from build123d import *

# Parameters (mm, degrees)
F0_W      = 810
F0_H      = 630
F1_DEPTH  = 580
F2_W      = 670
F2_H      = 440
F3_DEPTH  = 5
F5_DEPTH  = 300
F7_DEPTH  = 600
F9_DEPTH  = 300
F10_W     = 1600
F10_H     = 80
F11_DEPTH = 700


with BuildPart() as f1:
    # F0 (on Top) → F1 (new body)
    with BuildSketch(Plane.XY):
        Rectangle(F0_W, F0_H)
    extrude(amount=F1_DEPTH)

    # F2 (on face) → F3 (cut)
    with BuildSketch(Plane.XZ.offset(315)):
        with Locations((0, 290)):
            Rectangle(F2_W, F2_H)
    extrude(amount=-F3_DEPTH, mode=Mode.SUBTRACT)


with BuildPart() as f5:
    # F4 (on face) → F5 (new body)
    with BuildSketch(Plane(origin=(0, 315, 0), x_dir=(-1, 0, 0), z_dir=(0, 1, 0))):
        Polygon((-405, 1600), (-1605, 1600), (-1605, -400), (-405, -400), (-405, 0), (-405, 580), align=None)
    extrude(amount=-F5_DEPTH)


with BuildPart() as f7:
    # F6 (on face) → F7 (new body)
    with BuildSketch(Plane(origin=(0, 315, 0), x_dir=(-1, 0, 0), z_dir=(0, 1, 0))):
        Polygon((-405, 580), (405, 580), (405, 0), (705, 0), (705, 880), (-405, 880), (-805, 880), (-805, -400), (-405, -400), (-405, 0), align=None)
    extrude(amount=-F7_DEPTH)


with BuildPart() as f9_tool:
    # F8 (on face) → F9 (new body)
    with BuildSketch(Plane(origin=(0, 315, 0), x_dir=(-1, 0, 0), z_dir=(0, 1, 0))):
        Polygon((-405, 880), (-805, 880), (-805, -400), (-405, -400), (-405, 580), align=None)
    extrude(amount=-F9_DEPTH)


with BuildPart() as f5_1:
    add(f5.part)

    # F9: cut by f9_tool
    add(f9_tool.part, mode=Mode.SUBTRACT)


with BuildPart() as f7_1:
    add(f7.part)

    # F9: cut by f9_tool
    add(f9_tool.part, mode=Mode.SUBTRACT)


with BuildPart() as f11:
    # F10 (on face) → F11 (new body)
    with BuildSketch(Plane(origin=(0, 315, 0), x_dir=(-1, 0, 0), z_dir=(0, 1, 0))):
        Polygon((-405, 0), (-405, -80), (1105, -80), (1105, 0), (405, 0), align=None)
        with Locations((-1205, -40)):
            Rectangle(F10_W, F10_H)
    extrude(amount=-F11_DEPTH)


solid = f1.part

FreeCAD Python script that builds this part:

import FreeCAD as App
import Part
import Sketcher

V = App.Vector
Q = App.Units.Quantity


def add_polygon(sketch, points):
    """Adds a closed chain of lines whose ends are joined by coincident constraints."""
    first, n = sketch.GeometryCount, len(points)
    for a, b in zip(points, points[1:] + points[:1]):
        sketch.addGeometry(Part.LineSegment(App.Vector(*a, 0), App.Vector(*b, 0)), False)
    for i in range(n):
        sketch.addConstraint(Sketcher.Constraint("Coincident", first + i, 2, first + (i + 1) % n, 1))

doc = App.newDocument("Part")
params = doc.addObject("Spreadsheet::Sheet", "Params")
for row, (alias, value) in enumerate([
    ("sketch1_width", "810 mm"),
    ("sketch1_height", "630 mm"),
    ("pad1_length", "580 mm"),
    ("sketch2_width", "670 mm"),
    ("sketch2_height", "440 mm"),
    ("pocket1_length", "5 mm"),
    ("sketch3_width", "1200 mm"),
    ("sketch3_height", "2000 mm"),
    ("pad2_length", "300 mm"),
    ("sketch4_width", "810 mm"),
    ("sketch4_width2", "300 mm"),
    ("sketch4_width3", "1510 mm"),
    ("sketch4_height", "580 mm"),
    ("sketch4_height2", "880 mm"),
    ("pad3_length", "600 mm"),
    ("sketch5_width", "400 mm"),
    ("sketch5_height", "1280 mm"),
    ("pad4_length", "300 mm"),
    ("sketch6_width", "3110 mm"),
    ("sketch6_height", "80 mm"),
    ("pad5_length", "700 mm"),
], start=1):
    params.set(f"A{row}", alias)
    params.set(f"B{row}", "=" + value)
    params.setAlias(f"B{row}", alias)

body = doc.addObject("PartDesign::Body", "Body")

sketch1 = body.newObject("Sketcher::SketchObject", "Sketch")
sketch1.AttachmentSupport = (doc.getObject("XY_Plane"), [""])
sketch1.MapMode = "FlatFace"
add_polygon(sketch1, [(-405, 315), (-405, -315), (405, -315), (405, 315)])
sketch1.addConstraint([
    Sketcher.Constraint("Vertical", 0),
    Sketcher.Constraint("Horizontal", 1),
    Sketcher.Constraint("Vertical", 2),
    Sketcher.Constraint("Horizontal", 3),
    Sketcher.Constraint("Symmetric", 0, 2, 2, 2, -1, 1),
    Sketcher.Constraint("DistanceX", 1, 1, 1, 2, Q("810 mm")),
    Sketcher.Constraint("DistanceY", 0, 2, 0, 1, Q("630 mm")),
])
sketch1.setExpression("Constraints[9]", "Params.sketch1_width")
sketch1.setExpression("Constraints[10]", "Params.sketch1_height")
pad1 = body.newObject("PartDesign::Pad", "Pad")
pad1.Profile = sketch1
pad1.setExpression("Length", "Params.pad1_length")

sketch2 = body.newObject("Sketcher::SketchObject", "Sketch001")
sketch2.AttachmentSupport = (doc.getObject("XZ_Plane"), [""])
sketch2.MapMode = "FlatFace"
sketch2.AttachmentOffset = App.Placement(V(0, 0, 315), App.Rotation())
add_polygon(sketch2, [(-335, 510), (-335, 70), (335, 70), (335, 510)])
sketch2.addConstraint([
    Sketcher.Constraint("Vertical", 0),
    Sketcher.Constraint("Horizontal", 1),
    Sketcher.Constraint("Vertical", 2),
    Sketcher.Constraint("Horizontal", 3),
    Sketcher.Constraint("DistanceX", 1, 1, 1, 2, Q("670 mm")),
    Sketcher.Constraint("DistanceY", 0, 2, 0, 1, Q("440 mm")),
    Sketcher.Constraint("DistanceX", 0, 2, -1, 1, Q("335 mm")),
    Sketcher.Constraint("DistanceY", -1, 1, 0, 2, Q("70 mm")),
])
sketch2.setExpression("Constraints[8]", "Params.sketch2_width")
sketch2.setExpression("Constraints[9]", "Params.sketch2_height")
pocket1 = body.newObject("PartDesign::Pocket", "Pocket")
pocket1.Profile = sketch2
pocket1.setExpression("Length", "Params.pocket1_length")
body2 = doc.addObject("PartDesign::Body", "Body001")

sketch3 = body2.newObject("Sketcher::SketchObject", "Sketch002")
sketch3.AttachmentSupport = (doc.getObject("XZ_Plane001"), [""])
sketch3.MapMode = "FlatFace"
sketch3.AttachmentOffset = App.Placement(V(0, 0, -315), App.Rotation())
add_polygon(sketch3, [(405, 1600), (1605, 1600), (1605, -400), (405, -400)])
sketch3.addConstraint([
    Sketcher.Constraint("Horizontal", 0),
    Sketcher.Constraint("Vertical", 1),
    Sketcher.Constraint("Horizontal", 2),
    Sketcher.Constraint("Vertical", 3),
    Sketcher.Constraint("DistanceX", 0, 1, 0, 2, Q("1200 mm")),
    Sketcher.Constraint("DistanceY", 1, 2, 1, 1, Q("2000 mm")),
    Sketcher.Constraint("DistanceX", -1, 1, 0, 2, Q("1605 mm")),
    Sketcher.Constraint("DistanceY", -1, 1, 0, 2, Q("1600 mm")),
])
sketch3.setExpression("Constraints[8]", "Params.sketch3_width")
sketch3.setExpression("Constraints[9]", "Params.sketch3_height")
pad2 = body2.newObject("PartDesign::Pad", "Pad001")
pad2.Profile = sketch3
pad2.setExpression("Length", "Params.pad2_length")
body3 = doc.addObject("PartDesign::Body", "Body002")

sketch4 = body3.newObject("Sketcher::SketchObject", "Sketch003")
sketch4.AttachmentSupport = (doc.getObject("XZ_Plane002"), [""])
sketch4.MapMode = "FlatFace"
sketch4.AttachmentOffset = App.Placement(V(0, 0, -315), App.Rotation())
add_polygon(sketch4, [(405, 580), (-405, 580), (-405, 0), (-705, 0), (-705, 880), (805, 880), (805, -400), (405, -400)])
sketch4.addConstraint([
    Sketcher.Constraint("Horizontal", 0),
    Sketcher.Constraint("Vertical", 1),
    Sketcher.Constraint("Horizontal", 2),
    Sketcher.Constraint("Vertical", 3),
    Sketcher.Constraint("Horizontal", 4),
    Sketcher.Constraint("Vertical", 5),
    Sketcher.Constraint("Horizontal", 6),
    Sketcher.Constraint("Vertical", 7),
    Sketcher.Constraint("PointOnObject", 1, 2, -1),
    Sketcher.Constraint("DistanceX", 0, 2, 0, 1, Q("810 mm")),
    Sketcher.Constraint("DistanceX", 2, 2, 2, 1, Q("300 mm")),
    Sketcher.Constraint("DistanceX", 4, 1, 4, 2, Q("1510 mm")),
    Sketcher.Constraint("DistanceY", 1, 2, 1, 1, Q("580 mm")),
    Sketcher.Constraint("DistanceY", 3, 1, 3, 2, Q("880 mm")),
    Sketcher.Constraint("DistanceY", 5, 2, 5, 1, Q("1280 mm")),
    Sketcher.Constraint("DistanceX", 0, 2, -1, 1, Q("405 mm")),
])
sketch4.setExpression("Constraints[17]", "Params.sketch4_width")
sketch4.setExpression("Constraints[18]", "Params.sketch4_width2")
sketch4.setExpression("Constraints[19]", "Params.sketch4_width3")
sketch4.setExpression("Constraints[20]", "Params.sketch4_height")
sketch4.setExpression("Constraints[21]", "Params.sketch4_height2")
pad3 = body3.newObject("PartDesign::Pad", "Pad002")
pad3.Profile = sketch4
pad3.setExpression("Length", "Params.pad3_length")
body4 = doc.addObject("PartDesign::Body", "Body003")

sketch5 = body4.newObject("Sketcher::SketchObject", "Sketch004")
sketch5.AttachmentSupport = (doc.getObject("XZ_Plane003"), [""])
sketch5.MapMode = "FlatFace"
sketch5.AttachmentOffset = App.Placement(V(0, 0, -315), App.Rotation())
add_polygon(sketch5, [(405, 880), (805, 880), (805, -400), (405, -400)])
sketch5.addConstraint([
    Sketcher.Constraint("Horizontal", 0),
    Sketcher.Constraint("Vertical", 1),
    Sketcher.Constraint("Horizontal", 2),
    Sketcher.Constraint("Vertical", 3),
    Sketcher.Constraint("DistanceX", 0, 1, 0, 2, Q("400 mm")),
    Sketcher.Constraint("DistanceY", 1, 2, 1, 1, Q("1280 mm")),
    Sketcher.Constraint("DistanceX", -1, 1, 0, 2, Q("805 mm")),
    Sketcher.Constraint("DistanceY", -1, 1, 0, 2, Q("880 mm")),
])
sketch5.setExpression("Constraints[8]", "Params.sketch5_width")
sketch5.setExpression("Constraints[9]", "Params.sketch5_height")
pad4 = body4.newObject("PartDesign::Pad", "Pad003")
pad4.Profile = sketch5
pad4.setExpression("Length", "Params.pad4_length")
doc.recompute()

body5 = doc.addObject("PartDesign::Body", "Body004")
body5.BaseFeature = body4
boolean = body2.newObject("PartDesign::Boolean", "Boolean")
boolean.Type = "Cut"
boolean.addObjects([body5])
doc.recompute()

boolean2 = body3.newObject("PartDesign::Boolean", "Boolean001")
boolean2.Type = "Cut"
boolean2.addObjects([body4])
body6 = doc.addObject("PartDesign::Body", "Body005")

sketch6 = body6.newObject("Sketcher::SketchObject", "Sketch005")
sketch6.AttachmentSupport = (doc.getObject("XZ_Plane005"), [""])
sketch6.MapMode = "FlatFace"
sketch6.AttachmentOffset = App.Placement(V(0, 0, -315), App.Rotation())
add_polygon(sketch6, [(-1105, -80), (-1105, 0), (2005, 0), (2005, -80)])
sketch6.addConstraint([
    Sketcher.Constraint("Vertical", 0),
    Sketcher.Constraint("Horizontal", 1),
    Sketcher.Constraint("Vertical", 2),
    Sketcher.Constraint("Horizontal", 3),
    Sketcher.Constraint("PointOnObject", 0, 2, -1),
    Sketcher.Constraint("DistanceX", 1, 1, 1, 2, Q("3110 mm")),
    Sketcher.Constraint("DistanceY", 0, 1, 0, 2, Q("80 mm")),
    Sketcher.Constraint("DistanceX", 0, 2, -1, 1, Q("1105 mm")),
])
sketch6.setExpression("Constraints[9]", "Params.sketch6_width")
sketch6.setExpression("Constraints[10]", "Params.sketch6_height")
pad5 = body6.newObject("PartDesign::Pad", "Pad004")
pad5.Profile = sketch6
pad5.setExpression("Length", "Params.pad5_length")
body2.Visibility = False
body3.Visibility = False
body6.Visibility = False

doc.recompute()
